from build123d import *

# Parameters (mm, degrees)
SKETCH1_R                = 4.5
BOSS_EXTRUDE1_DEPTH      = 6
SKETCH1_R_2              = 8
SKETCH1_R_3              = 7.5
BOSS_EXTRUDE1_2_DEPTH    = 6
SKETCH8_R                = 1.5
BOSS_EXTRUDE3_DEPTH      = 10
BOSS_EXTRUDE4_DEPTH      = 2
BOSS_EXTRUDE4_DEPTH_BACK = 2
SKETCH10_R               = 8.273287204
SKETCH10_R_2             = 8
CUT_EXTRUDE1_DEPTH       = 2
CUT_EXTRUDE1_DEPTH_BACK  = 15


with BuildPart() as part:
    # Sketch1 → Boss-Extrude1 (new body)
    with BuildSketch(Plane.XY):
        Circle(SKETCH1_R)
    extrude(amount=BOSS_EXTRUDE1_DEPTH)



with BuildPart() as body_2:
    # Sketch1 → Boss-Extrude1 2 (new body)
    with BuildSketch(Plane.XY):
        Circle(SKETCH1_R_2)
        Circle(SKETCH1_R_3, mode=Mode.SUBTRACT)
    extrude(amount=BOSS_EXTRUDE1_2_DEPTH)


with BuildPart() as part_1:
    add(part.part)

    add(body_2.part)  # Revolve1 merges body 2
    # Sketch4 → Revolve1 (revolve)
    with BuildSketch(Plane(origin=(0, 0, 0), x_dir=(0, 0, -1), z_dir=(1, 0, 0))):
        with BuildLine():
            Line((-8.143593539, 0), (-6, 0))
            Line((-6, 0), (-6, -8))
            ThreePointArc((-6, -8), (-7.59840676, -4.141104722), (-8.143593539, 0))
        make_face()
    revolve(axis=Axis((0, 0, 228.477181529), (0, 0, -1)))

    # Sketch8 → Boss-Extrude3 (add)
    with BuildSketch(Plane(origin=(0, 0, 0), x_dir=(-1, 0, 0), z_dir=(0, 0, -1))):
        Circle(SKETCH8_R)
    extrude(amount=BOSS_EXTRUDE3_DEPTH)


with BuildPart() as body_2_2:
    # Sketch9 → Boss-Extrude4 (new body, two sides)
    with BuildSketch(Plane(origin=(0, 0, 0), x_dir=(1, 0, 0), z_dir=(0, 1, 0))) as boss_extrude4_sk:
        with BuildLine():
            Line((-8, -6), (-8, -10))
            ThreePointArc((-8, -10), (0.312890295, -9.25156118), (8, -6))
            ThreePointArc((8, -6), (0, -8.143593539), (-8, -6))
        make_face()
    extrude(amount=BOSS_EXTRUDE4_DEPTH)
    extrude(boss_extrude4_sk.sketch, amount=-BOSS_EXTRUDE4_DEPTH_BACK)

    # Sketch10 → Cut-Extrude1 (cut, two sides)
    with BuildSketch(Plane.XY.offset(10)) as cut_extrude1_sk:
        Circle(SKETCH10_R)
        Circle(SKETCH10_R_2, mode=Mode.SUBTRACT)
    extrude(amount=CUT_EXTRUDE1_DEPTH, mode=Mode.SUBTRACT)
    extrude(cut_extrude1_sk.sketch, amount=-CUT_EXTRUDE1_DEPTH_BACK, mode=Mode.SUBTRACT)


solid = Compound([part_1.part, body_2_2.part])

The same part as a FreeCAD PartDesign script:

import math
import FreeCAD as App
import Part
import Sketcher
from FreeCAD import Vector

doc = App.newDocument("Part")
params = doc.addObject("Spreadsheet::Sheet", "Params")
for row, (alias, value) in enumerate([
    ("sketch1_diameter", "9 mm"),
    ("pad1_length", "6 mm"),
    ("sketch2_diameter", "16 mm"),
    ("sketch2_diameter2", "15 mm"),
    ("pad2_length", "6 mm"),
    ("sketch3_radius", "16 mm"),
    ("sketch3_width", "8 mm"),
    ("revolution_angle", "360 deg"),
    ("sketch4_diameter", "3 mm"),
    ("pad3_length", "10 mm"),
    ("sketch5_radius", "27 mm"),
    ("sketch5_radius2", "16 mm"),
    ("sketch5_height", "4 mm"),
    ("pad4_length", "2 mm"),
    ("pad4_length2", "2 mm"),
    ("sketch6_diameter", "16 mm"),
], start=1):
    params.set(f"A{row}", alias)
    params.set(f"B{row}", "=" + value)
    params.setAlias(f"B{row}", alias)

body = doc.addObject("PartDesign::Body", "Body")

# Sketch on XY plane
sketch1 = body.newObject("Sketcher::SketchObject", "Sketch")
sketch1.AttachmentSupport = (doc.getObject("XY_Plane"), [""])
sketch1.MapMode = "FlatFace"
sketch1.addGeometry(Part.Circle(Vector(0, 0, 0), Vector(0, 0, 1), 4.5), False)
sketch1.addConstraint([
    Sketcher.Constraint("Coincident", 0, 3, -1, 1),
    Sketcher.Constraint("Diameter", 0, 9.0),
])
sketch1.setExpression("Constraints[1]", "Params.sketch1_diameter")
pad1 = body.newObject("PartDesign::Pad", "Pad")
pad1.Profile = sketch1
pad1.setExpression("Length", "Params.pad1_length")
body2 = doc.addObject("PartDesign::Body", "Body001")

# Sketch on XY plane
sketch2 = body2.newObject("Sketcher::SketchObject", "Sketch001")
sketch2.AttachmentSupport = (doc.getObject("XY_Plane001"), [""])
sketch2.MapMode = "FlatFace"
sketch2.addGeometry([
    Part.Circle(Vector(0, 0, 0), Vector(0, 0, 1), 8),
    Part.Circle(Vector(0, 0, 0), Vector(0, 0, 1), 7.5),
], False)
sketch2.addConstraint([
    Sketcher.Constraint("Coincident", 0, 3, -1, 1),
    Sketcher.Constraint("Coincident", 1, 3, -1, 1),
    Sketcher.Constraint("Diameter", 0, 16.0),
    Sketcher.Constraint("Diameter", 1, 15.0),
])
sketch2.setExpression("Constraints[2]", "Params.sketch2_diameter")
sketch2.setExpression("Constraints[3]", "Params.sketch2_diameter2")
pad2 = body2.newObject("PartDesign::Pad", "Pad001")
pad2.Profile = sketch2
pad2.setExpression("Length", "Params.pad2_length")
body.AllowCompound = True
doc.recompute()

boolean = body.newObject("PartDesign::Boolean", "Boolean")
boolean.Type = "Fuse"
boolean.addObjects([body2])

# Sketch on YZ plane
sketch3 = body.newObject("Sketcher::SketchObject", "Sketch002")
sketch3.AttachmentSupport = (doc.getObject("YZ_Plane"), [""])
sketch3.MapMode = "FlatFace"
sketch3.addGeometry([
    Part.LineSegment(Vector(0, 6, 0), Vector(0, 8.143594, 0)),
    Part.ArcOfCircle(Part.Circle(Vector(0, -7.856406, 0), Vector(0, 0, 1), 16), math.radians(90), math.radians(120)),
    Part.LineSegment(Vector(-8, 6, 0), Vector(0, 6, 0)),
], False)
sketch3.addConstraint([
    Sketcher.Constraint("Coincident", 0, 2, 1, 1),
    Sketcher.Constraint("Coincident", 1, 2, 2, 1),
    Sketcher.Constraint("Coincident", 2, 2, 0, 1),
    Sketcher.Constraint("Vertical", 0),
    Sketcher.Constraint("Horizontal", 2),
    Sketcher.Constraint("PointOnObject", 1, 3, -2),
    Sketcher.Constraint("PointOnObject", 0, 2, -2),
    Sketcher.Constraint("Radius", 1, 16.0),
    Sketcher.Constraint("DistanceX", 2, 1, 2, 2, 8.0),
    Sketcher.Constraint("DistanceY", -1, 1, 1, 2, 6.0),
])
sketch3.setExpression("Constraints[7]", "Params.sketch3_radius")
sketch3.setExpression("Constraints[8]", "Params.sketch3_width")
revolution = body.newObject("PartDesign::Revolution", "Revolution")
revolution.Profile = sketch3
revolution.ReferenceAxis = (sketch3, ["V_Axis"])
revolution.setExpression("Angle", "Params.revolution_angle")

# Sketch on XY plane
sketch4 = body.newObject("Sketcher::SketchObject", "Sketch003")
sketch4.AttachmentSupport = (doc.getObject("XY_Plane"), [""])
sketch4.MapMode = "FlatFace"
sketch4.addGeometry(Part.Circle(Vector(0, 0, 0), Vector(0, 0, 1), 1.5), False)
sketch4.addConstraint([
    Sketcher.Constraint("Coincident", 0, 3, -1, 1),
    Sketcher.Constraint("Diameter", 0, 3.0),
])
sketch4.setExpression("Constraints[1]", "Params.sketch4_diameter")
pad3 = body.newObject("PartDesign::Pad", "Pad002")
pad3.Profile = sketch4
pad3.setExpression("Length", "Params.pad3_length")
pad3.Reversed = True
body3 = doc.addObject("PartDesign::Body", "Body002")

# Sketch on XZ plane
sketch5 = body3.newObject("Sketcher::SketchObject", "Sketch004")
sketch5.AttachmentSupport = (doc.getObject("XZ_Plane002"), [""])
sketch5.MapMode = "FlatFace"
sketch5.addGeometry([
    Part.LineSegment(Vector(-8, 6, 0), Vector(-8, 10, 0)),
    Part.ArcOfCircle(Part.Circle(Vector(-6.235572, -16.942286, 0), Vector(0, 0, 1), 27), math.radians(58.18061), math.radians(93.746903)),
    Part.ArcOfCircle(Part.Circle(Vector(0, -7.856406, 0), Vector(0, 0, 1), 16), math.radians(60), math.radians(120)),
], False)
sketch5.addConstraint([
    Sketcher.Constraint("Coincident", 0, 2, 1, 2),
    Sketcher.Constraint("Coincident", 1, 1, 2, 1),
    Sketcher.Constraint("Coincident", 2, 2, 0, 1),
    Sketcher.Constraint("Vertical", 0),
    Sketcher.Constraint("Symmetric", 1, 1, 2, 2, -2),
    Sketcher.Constraint("Radius", 1, 27.0),
    Sketcher.Constraint("Radius", 2, 16.0),
    Sketcher.Constraint("DistanceY", 0, 1, 0, 2, 4.0),
    Sketcher.Constraint("DistanceX", 0, 2, -1, 1, 8.0),
    Sketcher.Constraint("DistanceY", -1, 1, 0, 2, 10.0),
])
sketch5.setExpression("Constraints[5]", "Params.sketch5_radius")
sketch5.setExpression("Constraints[6]", "Params.sketch5_radius2")
sketch5.setExpression("Constraints[7]", "Params.sketch5_height")
pad4 = body3.newObject("PartDesign::Pad", "Pad003")
pad4.Profile = sketch5
pad4.Type = "TwoLengths"
pad4.setExpression("Length", "Params.pad4_length")
pad4.setExpression("Length2", "Params.pad4_length2")
pad4.Reversed = True

# Sketch on XY plane
sketch6 = body3.newObject("Sketcher::SketchObject", "Sketch005")
sketch6.AttachmentSupport = (doc.getObject("XY_Plane002"), [""])
sketch6.MapMode = "FlatFace"
sketch6.AttachmentOffset = App.Placement(Vector(0, 0, 10), App.Rotation())
sketch6.addGeometry([
    Part.Circle(Vector(0, 0, 0), Vector(0, 0, 1), 8.273287),
    Part.Circle(Vector(0, 0, 0), Vector(0, 0, 1), 8),
], False)
sketch6.addConstraint([
    Sketcher.Constraint("Coincident", 0, 3, -1, 1),
    Sketcher.Constraint("Coincident", 1, 3, -1, 1),
    Sketcher.Constraint("Diameter", 1, 16.0),
    Sketcher.Constraint("Diameter", 0, 16.546574),
])
sketch6.setExpression("Constraints[2]", "Params.sketch6_diameter")
pocket1 = body3.newObject("PartDesign::Pocket", "Pocket")
pocket1.Profile = sketch6
pocket1.Type = "ThroughAll"
pocket1.Midplane = True

doc.recompute()
